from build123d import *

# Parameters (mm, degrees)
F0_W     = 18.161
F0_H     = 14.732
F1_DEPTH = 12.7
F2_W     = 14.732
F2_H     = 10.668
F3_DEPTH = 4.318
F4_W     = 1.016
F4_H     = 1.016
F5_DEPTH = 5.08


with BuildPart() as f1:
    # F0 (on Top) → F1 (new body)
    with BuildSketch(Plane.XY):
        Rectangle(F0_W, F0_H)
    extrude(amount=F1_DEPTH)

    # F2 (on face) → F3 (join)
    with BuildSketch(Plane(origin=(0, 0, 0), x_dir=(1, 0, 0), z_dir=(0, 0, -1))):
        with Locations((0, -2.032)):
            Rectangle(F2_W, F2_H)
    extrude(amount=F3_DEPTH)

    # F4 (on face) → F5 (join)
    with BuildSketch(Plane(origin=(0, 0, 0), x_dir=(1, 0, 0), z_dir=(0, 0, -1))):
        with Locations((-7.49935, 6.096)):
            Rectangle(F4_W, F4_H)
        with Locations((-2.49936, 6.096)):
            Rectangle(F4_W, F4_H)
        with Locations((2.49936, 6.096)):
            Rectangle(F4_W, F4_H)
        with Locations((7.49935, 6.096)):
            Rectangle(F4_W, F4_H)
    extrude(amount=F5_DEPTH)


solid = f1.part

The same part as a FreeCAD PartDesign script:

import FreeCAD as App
import Part
import Sketcher

V = App.Vector
Q = App.Units.Quantity

doc = App.newDocument("Part")
params = doc.addObject("Spreadsheet::Sheet", "Params")
for row, (alias, value) in enumerate([
    ("sketch1_height", "0.58 in"),
    ("sketch1_width", "0.715 in"),
    ("pad1_length", "0.5 in"),
    ("sketch2_width", "0.58 in"),
    ("sketch2_height", "0.42 in"),
    ("pad2_length", "0.17 in"),
    ("sketch3_width", "0.04 in"),
    ("pad3_length", "0.2 in"),
], start=1):
    params.set(f"A{row}", alias)
    params.set(f"B{row}", "=" + value)
    params.setAlias(f"B{row}", alias)

body = doc.addObject("PartDesign::Body", "Body")

sketch1 = body.newObject("Sketcher::SketchObject", "Sketch")
sketch1.AttachmentSupport = (doc.getObject("XY_Plane"), [""])
sketch1.MapMode = "FlatFace"
sketch1.addGeometry(Part.LineSegment(V(-9, 7, 0), V(-9, -7, 0)), False)
sketch1.addGeometry(Part.LineSegment(V(-9, -7, 0), V(9, -7, 0)), False)
sketch1.addGeometry(Part.LineSegment(V(9, -7, 0), V(9, 7, 0)), False)
sketch1.addGeometry(Part.LineSegment(V(9, 7, 0), V(-9, 7, 0)), False)
sketch1.addConstraint(Sketcher.Constraint("Coincident", 0, 2, 1, 1))
sketch1.addConstraint(Sketcher.Constraint("Coincident", 1, 2, 2, 1))
sketch1.addConstraint(Sketcher.Constraint("Coincident", 2, 2, 3, 1))
sketch1.addConstraint(Sketcher.Constraint("Coincident", 3, 2, 0, 1))
sketch1.addConstraint(Sketcher.Constraint("Vertical", 0))
sketch1.addConstraint(Sketcher.Constraint("Horizontal", 1))
sketch1.addConstraint(Sketcher.Constraint("Vertical", 2))
sketch1.addConstraint(Sketcher.Constraint("Horizontal", 3))
sketch1.addConstraint(Sketcher.Constraint("Symmetric", 0, 2, 2, 2, -1, 1))
sketch1.addConstraint(Sketcher.Constraint("DistanceY", 0, 2, 0, 1, Q("0.58 in")))
sketch1.addConstraint(Sketcher.Constraint("DistanceX", 1, 1, 1, 2, Q("0.715 in")))
sketch1.setExpression("Constraints[9]", "Params.sketch1_height")
sketch1.setExpression("Constraints[10]", "Params.sketch1_width")
pad1 = body.newObject("PartDesign::Pad", "Pad")
pad1.Profile = sketch1
pad1.setExpression("Length", "Params.pad1_length")

sketch2 = body.newObject("Sketcher::SketchObject", "Sketch001")
sketch2.AttachmentSupport = (doc.getObject("XY_Plane"), [""])
sketch2.MapMode = "FlatFace"
sketch2.addGeometry(Part.LineSegment(V(-7, -3, 0), V(-7, 7, 0)), False)
sketch2.addGeometry(Part.LineSegment(V(-7, 7, 0), V(7, 7, 0)), False)
sketch2.addGeometry(Part.LineSegment(V(7, 7, 0), V(7, -3, 0)), False)
sketch2.addGeometry(Part.LineSegment(V(7, -3, 0), V(-7, -3, 0)), False)
sketch2.addConstraint(Sketcher.Constraint("Coincident", 0, 2, 1, 1))
sketch2.addConstraint(Sketcher.Constraint("Coincident", 1, 2, 2, 1))
sketch2.addConstraint(Sketcher.Constraint("Coincident", 2, 2, 3, 1))
sketch2.addConstraint(Sketcher.Constraint("Coincident", 3, 2, 0, 1))
sketch2.addConstraint(Sketcher.Constraint("Vertical", 0))
sketch2.addConstraint(Sketcher.Constraint("Horizontal", 1))
sketch2.addConstraint(Sketcher.Constraint("Vertical", 2))
sketch2.addConstraint(Sketcher.Constraint("Horizontal", 3))
sketch2.addConstraint(Sketcher.Constraint("DistanceX", 1, 1, 1, 2, Q("0.58 in")))
sketch2.addConstraint(Sketcher.Constraint("DistanceY", 0, 1, 0, 2, Q("0.42 in")))
sketch2.addConstraint(Sketcher.Constraint("DistanceX", 0, 2, -1, 1, Q("0.29 in")))
sketch2.addConstraint(Sketcher.Constraint("DistanceY", -1, 1, 0, 2, Q("0.29 in")))
sketch2.setExpression("Constraints[8]", "Params.sketch2_width")
sketch2.setExpression("Constraints[9]", "Params.sketch2_height")
pad2 = body.newObject("PartDesign::Pad", "Pad001")
pad2.Profile = sketch2
pad2.setExpression("Length", "Params.pad2_length")
pad2.Reversed = True

sketch3 = body.newObject("Sketcher::SketchObject", "Sketch002")
sketch3.AttachmentSupport = (doc.getObject("XY_Plane"), [""])
sketch3.MapMode = "FlatFace"
sketch3.addGeometry(Part.LineSegment(V(-8, -6.6, 0), V(-8, -5.6, 0)), False)
sketch3.addGeometry(Part.LineSegment(V(-8, -5.6, 0), V(-7, -5.6, 0)), False)
sketch3.addGeometry(Part.LineSegment(V(-7, -5.6, 0), V(-7, -6.6, 0)), False)
sketch3.addGeometry(Part.LineSegment(V(-7, -6.6, 0), V(-8, -6.6, 0)), False)
sketch3.addGeometry(Part.LineSegment(V(-3, -6.6, 0), V(-3, -5.6, 0)), False)
sketch3.addGeometry(Part.LineSegment(V(-3, -5.6, 0), V(-2, -5.6, 0)), False)
sketch3.addGeometry(Part.LineSegment(V(-2, -5.6, 0), V(-2, -6.6, 0)), False)
sketch3.addGeometry(Part.LineSegment(V(-2, -6.6, 0), V(-3, -6.6, 0)), False)
sketch3.addGeometry(Part.LineSegment(V(2, -6.6, 0), V(2, -5.6, 0)), False)
sketch3.addGeometry(Part.LineSegment(V(2, -5.6, 0), V(3, -5.6, 0)), False)
sketch3.addGeometry(Part.LineSegment(V(3, -5.6, 0), V(3, -6.6, 0)), False)
sketch3.addGeometry(Part.LineSegment(V(3, -6.6, 0), V(2, -6.6, 0)), False)
sketch3.addGeometry(Part.LineSegment(V(7, -6.6, 0), V(7, -5.6, 0)), False)
sketch3.addGeometry(Part.LineSegment(V(7, -5.6, 0), V(8, -5.6, 0)), False)
sketch3.addGeometry(Part.LineSegment(V(8, -5.6, 0), V(8, -6.6, 0)), False)
sketch3.addGeometry(Part.LineSegment(V(8, -6.6, 0), V(7, -6.6, 0)), False)
sketch3.addConstraint(Sketcher.Constraint("Coincident", 0, 2, 1, 1))
sketch3.addConstraint(Sketcher.Constraint("Coincident", 1, 2, 2, 1))
sketch3.addConstraint(Sketcher.Constraint("Coincident", 2, 2, 3, 1))
sketch3.addConstraint(Sketcher.Constraint("Coincident", 3, 2, 0, 1))
sketch3.addConstraint(Sketcher.Constraint("Coincident", 4, 2, 5, 1))
sketch3.addConstraint(Sketcher.Constraint("Coincident", 5, 2, 6, 1))
sketch3.addConstraint(Sketcher.Constraint("Coincident", 6, 2, 7, 1))
sketch3.addConstraint(Sketcher.Constraint("Coincident", 7, 2, 4, 1))
sketch3.addConstraint(Sketcher.Constraint("Coincident", 8, 2, 9, 1))
sketch3.addConstraint(Sketcher.Constraint("Coincident", 9, 2, 10, 1))
sketch3.addConstraint(Sketcher.Constraint("Coincident", 10, 2, 11, 1))
sketch3.addConstraint(Sketcher.Constraint("Coincident", 11, 2, 8, 1))
sketch3.addConstraint(Sketcher.Constraint("Coincident", 12, 2, 13, 1))
sketch3.addConstraint(Sketcher.Constraint("Coincident", 13, 2, 14, 1))
sketch3.addConstraint(Sketcher.Constraint("Coincident", 14, 2, 15, 1))
sketch3.addConstraint(Sketcher.Constraint("Coincident", 15, 2, 12, 1))
sketch3.addConstraint(Sketcher.Constraint("Vertical", 0))
sketch3.addConstraint(Sketcher.Constraint("Horizontal", 1))
sketch3.addConstraint(Sketcher.Constraint("Vertical", 2))
sketch3.addConstraint(Sketcher.Constraint("Horizontal", 3))
sketch3.addConstraint(Sketcher.Constraint("Vertical", 4))
sketch3.addConstraint(Sketcher.Constraint("Horizontal", 5))
sketch3.addConstraint(Sketcher.Constraint("Vertical", 6))
sketch3.addConstraint(Sketcher.Constraint("Horizontal", 7))
sketch3.addConstraint(Sketcher.Constraint("Vertical", 8))
sketch3.addConstraint(Sketcher.Constraint("Horizontal", 9))
sketch3.addConstraint(Sketcher.Constraint("Vertical", 10))
sketch3.addConstraint(Sketcher.Constraint("Horizontal", 11))
sketch3.addConstraint(Sketcher.Constraint("Vertical", 12))
sketch3.addConstraint(Sketcher.Constraint("Horizontal", 13))
sketch3.addConstraint(Sketcher.Constraint("Vertical", 14))
sketch3.addConstraint(Sketcher.Constraint("Horizontal", 15))
sketch3.addConstraint(Sketcher.Constraint("Symmetric", 5, 2, 8, 2, -2))
sketch3.addConstraint(Sketcher.Constraint("Symmetric", 7, 2, 10, 2, -2))
sketch3.addConstraint(Sketcher.Constraint("Symmetric", 1, 2, 12, 2, -2))
sketch3.addConstraint(Sketcher.Constraint("Symmetric", 3, 2, 14, 2, -2))
sketch3.addConstraint(Sketcher.Constraint("Horizontal", 1, 2, 4, 2))
sketch3.addConstraint(Sketcher.Constraint("Horizontal", 3, 2, 6, 2))
sketch3.addConstraint(Sketcher.Constraint("Equal", 3, 5))
sketch3.addConstraint(Sketcher.Constraint("Equal", 15, 0))
sketch3.addConstraint(Sketcher.Constraint("DistanceX", 1, 1, 1, 2, Q("0.04 in")))
sketch3.addConstraint(Sketcher.Constraint("DistanceY", 0, 2, -1, 1, Q("0.22 in")))
sketch3.addConstraint(Sketcher.Constraint("DistanceX", 4, 2, -1, 1, Q("0.1184 in")))
sketch3.addConstraint(Sketcher.Constraint("DistanceX", 0, 2, -1, 1, Q("8.00735 mm")))
sketch3.setExpression("Constraints[40]", "Params.sketch3_width")
pad3 = body.newObject("PartDesign::Pad", "Pad002")
pad3.Profile = sketch3
pad3.setExpression("Length", "Params.pad3_length")
pad3.Reversed = True

doc.recompute()
